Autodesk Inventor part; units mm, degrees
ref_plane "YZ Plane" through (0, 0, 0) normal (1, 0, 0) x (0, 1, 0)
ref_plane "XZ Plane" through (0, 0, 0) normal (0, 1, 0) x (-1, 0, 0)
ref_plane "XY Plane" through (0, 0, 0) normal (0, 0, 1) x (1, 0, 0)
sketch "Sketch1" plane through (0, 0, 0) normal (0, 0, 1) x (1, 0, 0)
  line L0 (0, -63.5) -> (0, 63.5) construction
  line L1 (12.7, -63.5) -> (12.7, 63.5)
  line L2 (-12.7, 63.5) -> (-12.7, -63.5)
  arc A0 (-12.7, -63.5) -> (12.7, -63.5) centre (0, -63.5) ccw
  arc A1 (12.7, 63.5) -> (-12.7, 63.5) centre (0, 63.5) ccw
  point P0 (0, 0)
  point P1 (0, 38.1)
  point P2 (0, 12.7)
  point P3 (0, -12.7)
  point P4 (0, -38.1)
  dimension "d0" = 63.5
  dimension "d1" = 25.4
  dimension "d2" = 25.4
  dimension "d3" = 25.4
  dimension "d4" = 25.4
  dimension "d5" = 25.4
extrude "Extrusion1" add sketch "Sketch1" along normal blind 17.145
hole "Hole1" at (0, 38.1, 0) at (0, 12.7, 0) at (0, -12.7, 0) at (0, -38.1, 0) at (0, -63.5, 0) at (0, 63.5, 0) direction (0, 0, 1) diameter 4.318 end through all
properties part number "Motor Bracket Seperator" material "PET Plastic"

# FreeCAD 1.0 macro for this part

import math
import FreeCAD as App
import Part
import Sketcher

V = App.Vector
Q = App.Units.Quantity

doc = App.newDocument("Part")
params = doc.addObject("Spreadsheet::Sheet", "Params")
for row, (alias, value) in enumerate([
    ("sketch1_radius", "0.5 in"),
    ("pad1_length", "0.675 in"),
    ("sketch2_diameter", "0.17 in"),
    ("hole_diameter", "0.17 in"),
], start=1):
    params.set(f"A{row}", alias)
    params.set(f"B{row}", "=" + value)
    params.setAlias(f"B{row}", alias)

body = doc.addObject("PartDesign::Body", "Body")

# Sketch on XY plane
sketch1 = body.newObject("Sketcher::SketchObject", "Sketch")
sketch1.AttachmentSupport = (doc.getObject("XY_Plane"), [""])
sketch1.MapMode = "FlatFace"
sketch1.addGeometry([
    Part.ArcOfCircle(Part.Circle(V(0, -64, 0), V(0, 0, 1), 13), math.radians(180), math.radians(360)),
    Part.LineSegment(V(13, -64, 0), V(13, 64, 0)),
    Part.ArcOfCircle(Part.Circle(V(0, 64, 0), V(0, 0, 1), 13), math.radians(0), math.radians(180)),
    Part.LineSegment(V(-13, 64, 0), V(-13, -64, 0)),
], False)
sketch1.addConstraint([
    Sketcher.Constraint("Tangent", 0, 2, 1, 1),
    Sketcher.Constraint("Tangent", 1, 2, 2, 1),
    Sketcher.Constraint("Tangent", 2, 2, 3, 1),
    Sketcher.Constraint("Tangent", 3, 2, 0, 1),
    Sketcher.Constraint("Vertical", 1),
    Sketcher.Constraint("Vertical", 3),
    Sketcher.Constraint("Symmetric", 0, 3, 2, 3, -1, 1),
    Sketcher.Constraint("Radius", 0, Q("0.5 in")),
    Sketcher.Constraint("DistanceY", 0, 3, -1, 1, Q("2.5 in")),
])
sketch1.setExpression("Constraints[7]", "Params.sketch1_radius")
pad1 = body.newObject("PartDesign::Pad", "Pad")
pad1.Profile = sketch1
pad1.setExpression("Length", "Params.pad1_length")

# Sketch on XY plane
sketch2 = body.newObject("Sketcher::SketchObject", "Sketch001")
sketch2.AttachmentSupport = (doc.getObject("XY_Plane"), [""])
sketch2.MapMode = "FlatFace"
sketch2.addGeometry([
    Part.Circle(V(0, 38.1, 0), V(0, 0, 1), 2.2),  # 0
    Part.Circle(V(0, 12.7, 0), V(0, 0, 1), 2.2),  # 1
    Part.Circle(V(0, -12.7, 0), V(0, 0, 1), 2.2),  # 2
    Part.Circle(V(0, -38.1, 0), V(0, 0, 1), 2.2),  # 3
    Part.Circle(V(0, -63.5, 0), V(0, 0, 1), 2.2),  # 4
    Part.Circle(V(0, 63.5, 0), V(0, 0, 1), 2.2),  # 5
], False)
sketch2.addConstraint([
    Sketcher.Constraint("Equal", 0, 1),
    Sketcher.Constraint("Equal", 1, 2),
    Sketcher.Constraint("Equal", 2, 3),
    Sketcher.Constraint("Equal", 3, 4),
    Sketcher.Constraint("Equal", 4, 5),
    Sketcher.Constraint("Symmetric", 1, 3, 2, 3, -1, 1),
    Sketcher.Constraint("Symmetric", 0, 3, 3, 3, -1, 1),
    Sketcher.Constraint("Symmetric", 4, 3, 5, 3, -1, 1),
    Sketcher.Constraint("PointOnObject", 0, 3, -2),
    Sketcher.Constraint("PointOnObject", 1, 3, -2),
    Sketcher.Constraint("PointOnObject", 4, 3, -2),
    Sketcher.Constraint("Diameter", 0, Q("0.17 in")),
    Sketcher.Constraint("DistanceY", 1, 3, 0, 3, Q("1 in")),
    Sketcher.Constraint("DistanceY", 2, 3, 1, 3, Q("1 in")),
    Sketcher.Constraint("DistanceY", 4, 3, 3, 3, Q("1 in")),
])
sketch2.setExpression("Constraints[11]", "Params.sketch2_diameter")
doc.recompute()
hole = body.newObject("PartDesign::Hole", "Hole")
hole.Profile = sketch2
hole.ThreadType = "None"
hole.setExpression("Diameter", "Params.hole_diameter")
hole.DepthType = "ThroughAll"
hole.Reversed = True

doc.recompute()
